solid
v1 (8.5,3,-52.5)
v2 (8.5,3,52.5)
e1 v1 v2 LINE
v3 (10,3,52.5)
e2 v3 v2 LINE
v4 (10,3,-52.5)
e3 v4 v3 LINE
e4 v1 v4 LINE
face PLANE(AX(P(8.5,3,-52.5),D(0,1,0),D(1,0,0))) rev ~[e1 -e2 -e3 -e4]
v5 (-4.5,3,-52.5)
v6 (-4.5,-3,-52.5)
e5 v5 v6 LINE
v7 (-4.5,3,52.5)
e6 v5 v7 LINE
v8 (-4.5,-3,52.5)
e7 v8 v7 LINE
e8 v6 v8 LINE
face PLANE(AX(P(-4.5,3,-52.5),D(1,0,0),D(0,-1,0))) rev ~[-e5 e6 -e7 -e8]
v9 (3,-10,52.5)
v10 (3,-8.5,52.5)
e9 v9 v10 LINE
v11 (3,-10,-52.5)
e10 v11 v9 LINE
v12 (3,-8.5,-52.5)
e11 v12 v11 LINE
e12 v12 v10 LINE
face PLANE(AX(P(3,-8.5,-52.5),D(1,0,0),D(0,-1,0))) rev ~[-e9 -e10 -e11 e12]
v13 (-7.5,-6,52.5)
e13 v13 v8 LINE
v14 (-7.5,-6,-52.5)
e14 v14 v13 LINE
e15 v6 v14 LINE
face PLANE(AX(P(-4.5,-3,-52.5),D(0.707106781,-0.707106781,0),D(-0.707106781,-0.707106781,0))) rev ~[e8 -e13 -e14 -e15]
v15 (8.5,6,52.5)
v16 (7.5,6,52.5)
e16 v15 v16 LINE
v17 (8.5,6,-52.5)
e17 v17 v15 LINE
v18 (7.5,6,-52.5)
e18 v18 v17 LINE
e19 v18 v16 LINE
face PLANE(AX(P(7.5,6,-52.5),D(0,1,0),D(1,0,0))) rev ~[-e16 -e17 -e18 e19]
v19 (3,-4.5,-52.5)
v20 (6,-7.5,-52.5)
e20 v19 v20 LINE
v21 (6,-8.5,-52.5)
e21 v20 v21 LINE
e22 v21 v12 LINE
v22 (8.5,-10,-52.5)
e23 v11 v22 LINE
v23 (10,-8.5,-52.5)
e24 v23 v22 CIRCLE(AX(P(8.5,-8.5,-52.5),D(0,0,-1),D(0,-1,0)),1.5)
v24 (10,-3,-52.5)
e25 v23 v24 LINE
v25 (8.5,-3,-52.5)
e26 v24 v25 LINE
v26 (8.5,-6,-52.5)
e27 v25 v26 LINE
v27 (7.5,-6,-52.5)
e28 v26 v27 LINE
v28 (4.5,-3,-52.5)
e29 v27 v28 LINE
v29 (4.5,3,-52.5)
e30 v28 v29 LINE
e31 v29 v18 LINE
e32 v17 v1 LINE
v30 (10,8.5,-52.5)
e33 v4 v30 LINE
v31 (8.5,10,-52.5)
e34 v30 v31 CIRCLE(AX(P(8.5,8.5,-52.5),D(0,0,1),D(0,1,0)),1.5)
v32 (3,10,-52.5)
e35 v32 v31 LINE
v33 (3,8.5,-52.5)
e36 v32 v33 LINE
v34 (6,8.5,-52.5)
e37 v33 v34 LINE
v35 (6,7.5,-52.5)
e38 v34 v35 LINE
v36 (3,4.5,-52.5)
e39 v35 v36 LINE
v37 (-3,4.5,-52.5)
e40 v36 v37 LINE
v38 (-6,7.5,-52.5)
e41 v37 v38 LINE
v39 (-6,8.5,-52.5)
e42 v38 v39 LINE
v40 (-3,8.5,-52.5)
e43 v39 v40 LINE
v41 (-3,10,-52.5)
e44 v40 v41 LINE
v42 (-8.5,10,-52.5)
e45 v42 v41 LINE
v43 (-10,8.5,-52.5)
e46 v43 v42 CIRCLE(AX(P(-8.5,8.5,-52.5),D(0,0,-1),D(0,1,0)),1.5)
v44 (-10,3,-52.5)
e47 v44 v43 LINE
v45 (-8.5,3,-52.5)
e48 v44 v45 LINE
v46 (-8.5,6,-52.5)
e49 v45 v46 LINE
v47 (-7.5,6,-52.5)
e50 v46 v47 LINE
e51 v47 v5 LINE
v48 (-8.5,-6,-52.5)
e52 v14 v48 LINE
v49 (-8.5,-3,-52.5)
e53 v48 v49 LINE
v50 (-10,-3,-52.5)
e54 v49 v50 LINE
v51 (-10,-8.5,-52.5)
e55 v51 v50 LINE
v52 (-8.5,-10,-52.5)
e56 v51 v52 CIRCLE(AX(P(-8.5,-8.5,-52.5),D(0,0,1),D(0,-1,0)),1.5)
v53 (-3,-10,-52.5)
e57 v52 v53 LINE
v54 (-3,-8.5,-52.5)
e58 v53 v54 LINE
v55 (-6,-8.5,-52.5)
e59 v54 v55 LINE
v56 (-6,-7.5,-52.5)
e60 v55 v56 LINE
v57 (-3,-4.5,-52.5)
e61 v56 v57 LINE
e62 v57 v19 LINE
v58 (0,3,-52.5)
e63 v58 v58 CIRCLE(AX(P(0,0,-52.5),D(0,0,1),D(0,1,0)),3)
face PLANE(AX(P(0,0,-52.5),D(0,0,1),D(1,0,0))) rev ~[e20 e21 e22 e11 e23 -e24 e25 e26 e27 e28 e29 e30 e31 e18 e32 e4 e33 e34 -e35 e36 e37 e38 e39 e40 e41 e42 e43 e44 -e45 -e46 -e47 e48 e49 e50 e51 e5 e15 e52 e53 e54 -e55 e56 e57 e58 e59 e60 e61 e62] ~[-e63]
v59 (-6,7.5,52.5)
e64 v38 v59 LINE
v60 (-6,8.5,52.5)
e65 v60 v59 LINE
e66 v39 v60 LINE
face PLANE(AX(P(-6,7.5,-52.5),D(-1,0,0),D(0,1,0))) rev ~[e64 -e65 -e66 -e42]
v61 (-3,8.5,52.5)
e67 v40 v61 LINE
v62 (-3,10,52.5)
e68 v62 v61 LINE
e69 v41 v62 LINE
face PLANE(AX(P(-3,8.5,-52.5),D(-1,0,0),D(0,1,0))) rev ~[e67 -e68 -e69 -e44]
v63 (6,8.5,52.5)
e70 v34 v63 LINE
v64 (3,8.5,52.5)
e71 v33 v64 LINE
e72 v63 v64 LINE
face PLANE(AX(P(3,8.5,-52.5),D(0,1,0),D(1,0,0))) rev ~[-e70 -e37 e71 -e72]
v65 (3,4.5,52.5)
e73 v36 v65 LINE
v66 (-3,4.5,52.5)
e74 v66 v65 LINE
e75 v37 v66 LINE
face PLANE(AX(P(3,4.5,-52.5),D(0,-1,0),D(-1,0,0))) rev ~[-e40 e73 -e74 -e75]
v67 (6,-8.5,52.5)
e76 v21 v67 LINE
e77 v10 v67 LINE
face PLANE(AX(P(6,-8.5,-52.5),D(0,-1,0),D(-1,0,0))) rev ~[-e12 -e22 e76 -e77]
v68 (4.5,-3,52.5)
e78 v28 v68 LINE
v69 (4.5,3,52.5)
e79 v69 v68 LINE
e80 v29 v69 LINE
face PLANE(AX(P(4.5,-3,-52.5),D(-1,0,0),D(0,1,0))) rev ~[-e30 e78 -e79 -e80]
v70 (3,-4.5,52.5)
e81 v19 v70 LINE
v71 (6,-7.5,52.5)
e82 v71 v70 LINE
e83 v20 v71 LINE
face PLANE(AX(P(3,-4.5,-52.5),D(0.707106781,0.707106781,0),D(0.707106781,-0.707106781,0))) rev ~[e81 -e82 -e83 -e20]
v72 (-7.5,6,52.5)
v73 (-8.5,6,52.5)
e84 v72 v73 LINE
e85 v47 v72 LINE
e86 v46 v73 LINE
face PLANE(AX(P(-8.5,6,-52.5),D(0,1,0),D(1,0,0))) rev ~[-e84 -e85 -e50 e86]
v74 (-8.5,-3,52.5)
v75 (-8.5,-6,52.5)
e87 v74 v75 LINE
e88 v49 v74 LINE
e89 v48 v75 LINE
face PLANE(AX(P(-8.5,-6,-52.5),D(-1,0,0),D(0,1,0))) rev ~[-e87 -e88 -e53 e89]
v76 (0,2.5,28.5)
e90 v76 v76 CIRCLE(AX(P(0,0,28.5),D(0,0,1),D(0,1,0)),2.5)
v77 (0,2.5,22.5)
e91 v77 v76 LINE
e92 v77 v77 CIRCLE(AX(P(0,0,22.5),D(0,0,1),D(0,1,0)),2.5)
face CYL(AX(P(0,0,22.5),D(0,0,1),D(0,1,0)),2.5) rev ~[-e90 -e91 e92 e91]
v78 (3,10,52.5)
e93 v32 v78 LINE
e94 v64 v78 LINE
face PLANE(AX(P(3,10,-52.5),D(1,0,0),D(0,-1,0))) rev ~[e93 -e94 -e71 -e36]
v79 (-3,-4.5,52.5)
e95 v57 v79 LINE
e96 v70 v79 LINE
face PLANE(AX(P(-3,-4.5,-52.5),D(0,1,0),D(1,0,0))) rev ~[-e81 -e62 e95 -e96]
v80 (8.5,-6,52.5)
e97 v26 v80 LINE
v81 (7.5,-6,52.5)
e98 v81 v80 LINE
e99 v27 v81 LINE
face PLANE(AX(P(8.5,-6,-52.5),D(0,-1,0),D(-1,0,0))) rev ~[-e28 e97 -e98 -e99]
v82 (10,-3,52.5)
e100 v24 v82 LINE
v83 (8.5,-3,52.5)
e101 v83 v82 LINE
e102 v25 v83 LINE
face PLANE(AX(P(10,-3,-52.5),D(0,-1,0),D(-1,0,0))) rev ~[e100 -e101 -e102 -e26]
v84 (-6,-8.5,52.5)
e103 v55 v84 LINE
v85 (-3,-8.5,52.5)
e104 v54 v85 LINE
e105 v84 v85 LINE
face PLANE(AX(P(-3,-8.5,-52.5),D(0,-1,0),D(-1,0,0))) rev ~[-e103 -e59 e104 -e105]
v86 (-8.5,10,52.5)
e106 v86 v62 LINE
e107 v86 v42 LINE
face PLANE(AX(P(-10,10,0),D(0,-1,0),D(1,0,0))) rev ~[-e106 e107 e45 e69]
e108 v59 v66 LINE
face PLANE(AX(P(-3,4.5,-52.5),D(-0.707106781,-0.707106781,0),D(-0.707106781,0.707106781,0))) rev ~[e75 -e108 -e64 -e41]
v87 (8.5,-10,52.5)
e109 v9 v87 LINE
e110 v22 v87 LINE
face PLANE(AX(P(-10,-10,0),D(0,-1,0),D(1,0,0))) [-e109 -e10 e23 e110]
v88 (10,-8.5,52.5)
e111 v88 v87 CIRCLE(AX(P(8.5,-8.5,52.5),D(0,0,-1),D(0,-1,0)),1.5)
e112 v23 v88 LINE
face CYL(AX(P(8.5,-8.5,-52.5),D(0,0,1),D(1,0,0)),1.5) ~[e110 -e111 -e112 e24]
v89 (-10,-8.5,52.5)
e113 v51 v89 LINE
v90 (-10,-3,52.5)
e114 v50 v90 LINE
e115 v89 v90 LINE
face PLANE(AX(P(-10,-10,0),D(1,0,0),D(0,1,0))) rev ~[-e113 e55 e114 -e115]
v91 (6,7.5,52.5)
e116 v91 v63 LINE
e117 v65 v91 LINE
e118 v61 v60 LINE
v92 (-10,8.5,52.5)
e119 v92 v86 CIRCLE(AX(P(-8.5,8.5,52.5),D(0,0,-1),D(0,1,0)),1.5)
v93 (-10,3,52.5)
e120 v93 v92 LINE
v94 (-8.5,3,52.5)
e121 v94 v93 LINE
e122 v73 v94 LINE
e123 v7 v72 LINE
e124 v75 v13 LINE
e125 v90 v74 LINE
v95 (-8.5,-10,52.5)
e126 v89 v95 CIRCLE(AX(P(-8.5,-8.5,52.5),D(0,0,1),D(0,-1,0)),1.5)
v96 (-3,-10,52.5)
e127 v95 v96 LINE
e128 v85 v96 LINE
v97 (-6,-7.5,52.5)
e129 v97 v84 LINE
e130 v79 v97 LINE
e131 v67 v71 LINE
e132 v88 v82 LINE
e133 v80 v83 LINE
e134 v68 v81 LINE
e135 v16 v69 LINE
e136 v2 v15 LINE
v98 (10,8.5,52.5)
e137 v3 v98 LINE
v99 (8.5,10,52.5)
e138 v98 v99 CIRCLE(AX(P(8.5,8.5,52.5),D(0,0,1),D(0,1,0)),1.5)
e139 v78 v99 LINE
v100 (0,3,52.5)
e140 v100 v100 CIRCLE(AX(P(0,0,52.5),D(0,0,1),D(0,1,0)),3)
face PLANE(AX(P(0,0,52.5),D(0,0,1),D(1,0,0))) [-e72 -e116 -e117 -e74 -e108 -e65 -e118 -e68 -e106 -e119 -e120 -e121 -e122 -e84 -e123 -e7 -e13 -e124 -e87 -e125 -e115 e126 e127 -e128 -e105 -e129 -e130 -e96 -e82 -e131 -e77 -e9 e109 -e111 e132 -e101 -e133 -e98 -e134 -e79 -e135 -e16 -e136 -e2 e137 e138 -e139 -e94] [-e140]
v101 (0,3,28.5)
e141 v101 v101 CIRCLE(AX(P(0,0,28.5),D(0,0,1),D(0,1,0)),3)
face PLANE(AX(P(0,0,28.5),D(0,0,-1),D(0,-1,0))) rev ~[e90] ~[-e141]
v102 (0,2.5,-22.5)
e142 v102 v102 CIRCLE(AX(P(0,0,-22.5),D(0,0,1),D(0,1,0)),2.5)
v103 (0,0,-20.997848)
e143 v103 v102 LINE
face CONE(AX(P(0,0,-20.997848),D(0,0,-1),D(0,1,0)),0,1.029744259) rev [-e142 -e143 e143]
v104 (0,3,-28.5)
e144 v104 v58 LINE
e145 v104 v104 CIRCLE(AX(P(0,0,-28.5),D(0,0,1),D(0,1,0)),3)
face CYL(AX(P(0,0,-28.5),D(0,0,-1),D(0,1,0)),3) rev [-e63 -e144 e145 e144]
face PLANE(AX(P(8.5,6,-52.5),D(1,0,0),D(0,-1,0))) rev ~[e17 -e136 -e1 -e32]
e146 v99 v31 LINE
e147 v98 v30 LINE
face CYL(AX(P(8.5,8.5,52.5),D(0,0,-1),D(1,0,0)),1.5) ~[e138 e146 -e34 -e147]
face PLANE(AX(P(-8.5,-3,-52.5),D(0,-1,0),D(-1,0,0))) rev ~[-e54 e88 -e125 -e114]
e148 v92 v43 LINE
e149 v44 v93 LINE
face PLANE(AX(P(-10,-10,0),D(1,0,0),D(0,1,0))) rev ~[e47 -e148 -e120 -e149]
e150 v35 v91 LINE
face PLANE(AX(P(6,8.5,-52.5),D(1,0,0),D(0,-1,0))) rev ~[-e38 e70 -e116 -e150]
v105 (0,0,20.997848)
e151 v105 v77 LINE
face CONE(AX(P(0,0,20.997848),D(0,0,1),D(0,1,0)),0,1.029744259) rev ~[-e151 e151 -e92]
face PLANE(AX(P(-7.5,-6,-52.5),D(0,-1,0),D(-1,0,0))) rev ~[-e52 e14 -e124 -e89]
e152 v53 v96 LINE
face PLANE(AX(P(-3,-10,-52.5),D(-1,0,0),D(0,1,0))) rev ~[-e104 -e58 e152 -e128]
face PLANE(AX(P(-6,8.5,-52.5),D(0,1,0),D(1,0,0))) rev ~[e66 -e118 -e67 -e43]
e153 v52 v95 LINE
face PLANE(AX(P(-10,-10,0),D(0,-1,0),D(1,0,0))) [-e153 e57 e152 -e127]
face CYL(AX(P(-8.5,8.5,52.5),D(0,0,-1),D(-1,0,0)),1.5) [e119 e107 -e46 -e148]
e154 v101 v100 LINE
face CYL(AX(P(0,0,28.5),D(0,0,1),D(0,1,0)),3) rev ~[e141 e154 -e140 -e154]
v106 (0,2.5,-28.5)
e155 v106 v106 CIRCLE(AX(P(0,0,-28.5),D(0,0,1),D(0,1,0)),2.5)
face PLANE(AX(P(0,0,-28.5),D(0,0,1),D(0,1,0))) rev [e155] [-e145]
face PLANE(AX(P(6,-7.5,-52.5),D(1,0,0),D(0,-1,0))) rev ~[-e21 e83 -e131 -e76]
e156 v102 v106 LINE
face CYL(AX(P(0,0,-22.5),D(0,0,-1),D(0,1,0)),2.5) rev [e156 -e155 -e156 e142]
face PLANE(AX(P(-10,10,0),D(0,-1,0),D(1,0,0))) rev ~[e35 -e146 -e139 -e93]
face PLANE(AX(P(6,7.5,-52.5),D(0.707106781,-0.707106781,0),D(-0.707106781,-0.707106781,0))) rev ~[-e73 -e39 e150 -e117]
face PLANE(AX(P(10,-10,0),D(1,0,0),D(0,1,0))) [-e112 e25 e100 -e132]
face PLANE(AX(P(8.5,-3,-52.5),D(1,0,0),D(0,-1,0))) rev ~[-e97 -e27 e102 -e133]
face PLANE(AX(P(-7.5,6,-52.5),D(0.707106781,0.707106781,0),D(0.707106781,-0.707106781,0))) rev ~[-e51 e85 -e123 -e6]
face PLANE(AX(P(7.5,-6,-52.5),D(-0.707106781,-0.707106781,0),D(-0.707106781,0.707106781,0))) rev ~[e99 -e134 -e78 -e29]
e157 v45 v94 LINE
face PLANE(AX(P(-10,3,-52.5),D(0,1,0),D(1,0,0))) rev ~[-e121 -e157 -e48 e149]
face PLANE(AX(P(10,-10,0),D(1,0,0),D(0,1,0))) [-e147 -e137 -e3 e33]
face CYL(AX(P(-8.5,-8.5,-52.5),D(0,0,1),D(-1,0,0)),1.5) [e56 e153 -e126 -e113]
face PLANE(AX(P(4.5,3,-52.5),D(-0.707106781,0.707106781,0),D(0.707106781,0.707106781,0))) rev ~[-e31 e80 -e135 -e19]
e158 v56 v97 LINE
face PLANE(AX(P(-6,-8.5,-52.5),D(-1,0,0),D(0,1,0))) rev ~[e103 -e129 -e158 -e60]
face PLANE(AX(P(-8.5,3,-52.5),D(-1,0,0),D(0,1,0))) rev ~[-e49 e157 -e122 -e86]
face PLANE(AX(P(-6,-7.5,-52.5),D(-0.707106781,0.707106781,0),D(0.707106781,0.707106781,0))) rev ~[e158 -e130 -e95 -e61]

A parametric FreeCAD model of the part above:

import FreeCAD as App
import Part
import Sketcher
Q = App.Units.Quantity


def edges_at(feature, points):
    """Names of the edges that pass closest to the given points."""
    edges = feature.Shape.Edges
    near = lambda p: min(range(len(edges)), key=lambda i: edges[i].distToShape(Part.Vertex(*p))[0])
    return sorted({f"Edge{near(p) + 1}" for p in points})

doc = App.newDocument("Part")
body = doc.addObject("PartDesign::Body", "Body")

# Sketch on XY plane
sketch1 = body.newObject("Sketcher::SketchObject", "Sketch")
sketch1.AttachmentSupport = (doc.getObject("XY_Plane"), [""])
sketch1.MapMode = "FlatFace"
sketch1.addGeometry(Part.LineSegment(App.Vector(-10, 10, 0), App.Vector(-10, -10, 0)), False)
sketch1.addGeometry(Part.LineSegment(App.Vector(-10, -10, 0), App.Vector(10, -10, 0)), False)
sketch1.addGeometry(Part.LineSegment(App.Vector(10, -10, 0), App.Vector(10, 10, 0)), False)
sketch1.addGeometry(Part.LineSegment(App.Vector(10, 10, 0), App.Vector(-10, 10, 0)), False)
sketch1.addConstraint(Sketcher.Constraint("Coincident", 0, 2, 1, 1))
sketch1.addConstraint(Sketcher.Constraint("Coincident", 1, 2, 2, 1))
sketch1.addConstraint(Sketcher.Constraint("Coincident", 2, 2, 3, 1))
sketch1.addConstraint(Sketcher.Constraint("Coincident", 3, 2, 0, 1))
sketch1.addConstraint(Sketcher.Constraint("Vertical", 0))
sketch1.addConstraint(Sketcher.Constraint("Horizontal", 1))
sketch1.addConstraint(Sketcher.Constraint("Vertical", 2))
sketch1.addConstraint(Sketcher.Constraint("Horizontal", 3))
sketch1.addConstraint(Sketcher.Constraint("Symmetric", 0, 2, 2, 2, -1, 1))
sketch1.addConstraint(Sketcher.Constraint("Equal", 3, 0))
sketch1.addConstraint(Sketcher.Constraint("DistanceX", 1, 1, 1, 2, Q("20 mm")))
pad1 = body.newObject("PartDesign::Pad", "Pad")
pad1.Profile = sketch1
pad1.Length = 105
pad1.Midplane = True
doc.recompute()

fillet = body.newObject("PartDesign::Fillet", "Fillet")
fillet.Base = (pad1, edges_at(pad1, [
    (-10, 10, 0),
    (10, 10, 0),
    (10, -10, 0),
    (-10, -10, 0),
]))
fillet.Radius = 1.5

# Sketch on XY plane
sketch2 = body.newObject("Sketcher::SketchObject", "Sketch001")
sketch2.AttachmentSupport = (doc.getObject("XY_Plane"), [""])
sketch2.MapMode = "FlatFace"
sketch2.AttachmentOffset = App.Placement(App.Vector(0, 0, -52.5), App.Rotation())
sketch2.addGeometry(Part.LineSegment(App.Vector(10, 3, 0), App.Vector(10, -3, 0)), False)
sketch2.addGeometry(Part.LineSegment(App.Vector(10, -3, 0), App.Vector(8.5, -3, 0)), False)
sketch2.addGeometry(Part.LineSegment(App.Vector(8.5, -3, 0), App.Vector(8.5, -6, 0)), False)
sketch2.addGeometry(Part.LineSegment(App.Vector(8.5, -6, 0), App.Vector(7.5, -6, 0)), False)
sketch2.addGeometry(Part.LineSegment(App.Vector(7.5, -6, 0), App.Vector(4.5, -3, 0)), False)
sketch2.addGeometry(Part.LineSegment(App.Vector(4.5, -3, 0), App.Vector(4.5, 3, 0)), False)
sketch2.addGeometry(Part.LineSegment(App.Vector(4.5, 3, 0), App.Vector(7.5, 6, 0)), False)
sketch2.addGeometry(Part.LineSegment(App.Vector(7.5, 6, 0), App.Vector(8.5, 6, 0)), False)
sketch2.addGeometry(Part.LineSegment(App.Vector(8.5, 6, 0), App.Vector(8.5, 3, 0)), False)
sketch2.addGeometry(Part.LineSegment(App.Vector(8.5, 3, 0), App.Vector(10, 3, 0)), False)
sketch2.addConstraint(Sketcher.Constraint("Coincident", 0, 2, 1, 1))
sketch2.addConstraint(Sketcher.Constraint("Coincident", 1, 2, 2, 1))
sketch2.addConstraint(Sketcher.Constraint("Coincident", 2, 2, 3, 1))
sketch2.addConstraint(Sketcher.Constraint("Coincident", 3, 2, 4, 1))
sketch2.addConstraint(Sketcher.Constraint("Coincident", 4, 2, 5, 1))
sketch2.addConstraint(Sketcher.Constraint("Coincident", 5, 2, 6, 1))
sketch2.addConstraint(Sketcher.Constraint("Coincident", 6, 2, 7, 1))
sketch2.addConstraint(Sketcher.Constraint("Coincident", 7, 2, 8, 1))
sketch2.addConstraint(Sketcher.Constraint("Coincident", 8, 2, 9, 1))
sketch2.addConstraint(Sketcher.Constraint("Coincident", 9, 2, 0, 1))
sketch2.addConstraint(Sketcher.Constraint("Vertical", 0))
sketch2.addConstraint(Sketcher.Constraint("Horizontal", 1))
sketch2.addConstraint(Sketcher.Constraint("Vertical", 2))
sketch2.addConstraint(Sketcher.Constraint("Horizontal", 3))
sketch2.addConstraint(Sketcher.Constraint("Vertical", 5))
sketch2.addConstraint(Sketcher.Constraint("Horizontal", 7))
sketch2.addConstraint(Sketcher.Constraint("Vertical", 8))
sketch2.addConstraint(Sketcher.Constraint("Horizontal", 9))
sketch2.addConstraint(Sketcher.Constraint("Symmetric", 3, 2, 6, 2, -1))
sketch2.addConstraint(Sketcher.Constraint("Symmetric", 1, 2, 8, 2, -1))
sketch2.addConstraint(Sketcher.Constraint("Perpendicular", 4, 6))
sketch2.addConstraint(Sketcher.Constraint("Horizontal", 1, 2, 4, 2))
sketch2.addConstraint(Sketcher.Constraint("Horizontal", 5, 2, 8, 2))
sketch2.addConstraint(Sketcher.Constraint("DistanceX", 3, 2, 3, 1, Q("1 mm")))
sketch2.addConstraint(Sketcher.Constraint("DistanceY", 0, 2, 0, 1, Q("6 mm")))
sketch2.addConstraint(Sketcher.Constraint("DistanceY", 2, 2, 2, 1, Q("3 mm")))
sketch2.addConstraint(Sketcher.Constraint("DistanceX", 1, 2, 1, 1, Q("1.5 mm")))
sketch2.addConstraint(Sketcher.Constraint("DistanceX", -1, 1, 0, 2, Q("10 mm")))
pocket1 = body.newObject("PartDesign::Pocket", "Pocket")
pocket1.Profile = sketch2
pocket1.Type = "ThroughAll"
pocket1.Reversed = True
doc.recompute()

polarpattern = body.newObject("PartDesign::PolarPattern", "PolarPattern")
polarpattern.Originals = [pocket1]
polarpattern.Axis = (doc.getObject("Z_Axis"), [""])
polarpattern.Angle = 360
polarpattern.Occurrences = 4
body.Tip = polarpattern

# Sketch on YZ plane
sketch3 = body.newObject("Sketcher::SketchObject", "Sketch002")
sketch3.AttachmentSupport = (doc.getObject("YZ_Plane"), [""])
sketch3.MapMode = "FlatFace"
sketch3.addGeometry(Part.LineSegment(App.Vector(0, -21, 0), App.Vector(0, -52.5, 0)), False)
sketch3.addGeometry(Part.LineSegment(App.Vector(0, -52.5, 0), App.Vector(3, -52.5, 0)), False)
sketch3.addGeometry(Part.LineSegment(App.Vector(3, -52.5, 0), App.Vector(3, -28.5, 0)), False)
sketch3.addGeometry(Part.LineSegment(App.Vector(3, -28.5, 0), App.Vector(2.5, -28.5, 0)), False)
sketch3.addGeometry(Part.LineSegment(App.Vector(2.5, -28.5, 0), App.Vector(2.5, -22.5, 0)), False)
sketch3.addGeometry(Part.LineSegment(App.Vector(2.5, -22.5, 0), App.Vector(0, -21, 0)), False)
sketch3.addConstraint(Sketcher.Constraint("Coincident", 0, 2, 1, 1))
sketch3.addConstraint(Sketcher.Constraint("Coincident", 1, 2, 2, 1))
sketch3.addConstraint(Sketcher.Constraint("Coincident", 2, 2, 3, 1))
sketch3.addConstraint(Sketcher.Constraint("Coincident", 3, 2, 4, 1))
sketch3.addConstraint(Sketcher.Constraint("Coincident", 4, 2, 5, 1))
sketch3.addConstraint(Sketcher.Constraint("Coincident", 5, 2, 0, 1))
sketch3.addConstraint(Sketcher.Constraint("Vertical", 0))
sketch3.addConstraint(Sketcher.Constraint("Horizontal", 1))
sketch3.addConstraint(Sketcher.Constraint("Vertical", 2))
sketch3.addConstraint(Sketcher.Constraint("Horizontal", 3))
sketch3.addConstraint(Sketcher.Constraint("Vertical", 4))
sketch3.addConstraint(Sketcher.Constraint("PointOnObject", 0, 2, -2))
sketch3.addConstraint(Sketcher.Constraint("DistanceX", 1, 1, 1, 2, Q("3 mm")))
sketch3.addConstraint(Sketcher.Constraint("DistanceY", 2, 1, 2, 2, Q("24 mm")))
sketch3.addConstraint(Sketcher.Constraint("DistanceY", 4, 1, 4, 2, Q("6 mm")))
sketch3.addConstraint(Sketcher.Constraint("Angle", 5, Q("149 deg")))
sketch3.addConstraint(Sketcher.Constraint("DistanceX", 3, 2, 3, 1, Q("0.5 mm")))
sketch3.addConstraint(Sketcher.Constraint("DistanceY", 0, 2, -1, 1, Q("52.5 mm")))
groove = body.newObject("PartDesign::Groove", "Groove")
groove.Profile = sketch3
groove.ReferenceAxis = (sketch3, ["V_Axis"])
groove.Angle = 360
doc.recompute()

mirrored = body.newObject("PartDesign::Mirrored", "Mirrored")
mirrored.Originals = [groove]
mirrored.MirrorPlane = (doc.getObject("XY_Plane"), [""])
body.Tip = mirrored

doc.recompute()
